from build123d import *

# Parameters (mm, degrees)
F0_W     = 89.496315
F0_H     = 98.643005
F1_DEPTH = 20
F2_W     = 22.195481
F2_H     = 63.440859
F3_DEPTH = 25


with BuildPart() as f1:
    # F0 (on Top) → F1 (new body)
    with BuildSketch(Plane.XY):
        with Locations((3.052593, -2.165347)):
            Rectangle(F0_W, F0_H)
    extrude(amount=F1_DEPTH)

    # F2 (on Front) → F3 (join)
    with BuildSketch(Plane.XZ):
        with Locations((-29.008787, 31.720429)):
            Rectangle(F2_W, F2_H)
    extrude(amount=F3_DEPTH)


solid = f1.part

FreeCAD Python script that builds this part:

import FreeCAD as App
import Part
import Sketcher
from FreeCAD import Vector

doc = App.newDocument("Part")
body = doc.addObject("PartDesign::Body", "Body")

# Sketch on XY plane
sketch1 = body.newObject("Sketcher::SketchObject", "Sketch")
sketch1.AttachmentSupport = (doc.getObject("XY_Plane"), [""])
sketch1.MapMode = "FlatFace"
sketch1.addGeometry([
    Part.LineSegment(Vector(-42, 47, 0), Vector(-42, -51, 0)),
    Part.LineSegment(Vector(-42, -51, 0), Vector(48, -51, 0)),
    Part.LineSegment(Vector(48, -51, 0), Vector(48, 47, 0)),
    Part.LineSegment(Vector(48, 47, 0), Vector(-42, 47, 0)),
], False)
sketch1.addConstraint([
    Sketcher.Constraint("Coincident", 0, 2, 1, 1),
    Sketcher.Constraint("Coincident", 1, 2, 2, 1),
    Sketcher.Constraint("Coincident", 2, 2, 3, 1),
    Sketcher.Constraint("Coincident", 3, 2, 0, 1),
    Sketcher.Constraint("Vertical", 0),
    Sketcher.Constraint("Horizontal", 1),
    Sketcher.Constraint("Vertical", 2),
    Sketcher.Constraint("Horizontal", 3),
    Sketcher.Constraint("DistanceX", 1, 1, 1, 2, 89.496315),
    Sketcher.Constraint("DistanceY", 0, 2, 0, 1, 98.643005),
    Sketcher.Constraint("DistanceY", 0, 2, -1, 1, 51.486849),
    Sketcher.Constraint("DistanceX", -1, 1, 1, 2, 47.80075),
])
pad1 = body.newObject("PartDesign::Pad", "Pad")
pad1.Profile = sketch1
pad1.Length = 20

# Sketch on XZ plane
sketch2 = body.newObject("Sketcher::SketchObject", "Sketch001")
sketch2.AttachmentSupport = (doc.getObject("XZ_Plane"), [""])
sketch2.MapMode = "FlatFace"
sketch2.addGeometry([
    Part.LineSegment(Vector(-40, 63, 0), Vector(-40, 0, 0)),
    Part.LineSegment(Vector(-40, 0, 0), Vector(-18, 0, 0)),
    Part.LineSegment(Vector(-18, 0, 0), Vector(-18, 63, 0)),
    Part.LineSegment(Vector(-18, 63, 0), Vector(-40, 63, 0)),
], False)
sketch2.addConstraint([
    Sketcher.Constraint("Coincident", 0, 2, 1, 1),
    Sketcher.Constraint("Coincident", 1, 2, 2, 1),
    Sketcher.Constraint("Coincident", 2, 2, 3, 1),
    Sketcher.Constraint("Coincident", 3, 2, 0, 1),
    Sketcher.Constraint("Vertical", 0),
    Sketcher.Constraint("Horizontal", 1),
    Sketcher.Constraint("Vertical", 2),
    Sketcher.Constraint("Horizontal", 3),
    Sketcher.Constraint("PointOnObject", 0, 2, -1),
    Sketcher.Constraint("DistanceX", 1, 1, 1, 2, 22.195481),
    Sketcher.Constraint("DistanceY", 0, 2, 0, 1, 63.440859),
    Sketcher.Constraint("DistanceX", 0, 2, -1, 1, 40.106527),
])
pad2 = body.newObject("PartDesign::Pad", "Pad001")
pad2.Profile = sketch2
pad2.Length = 25

doc.recompute()
